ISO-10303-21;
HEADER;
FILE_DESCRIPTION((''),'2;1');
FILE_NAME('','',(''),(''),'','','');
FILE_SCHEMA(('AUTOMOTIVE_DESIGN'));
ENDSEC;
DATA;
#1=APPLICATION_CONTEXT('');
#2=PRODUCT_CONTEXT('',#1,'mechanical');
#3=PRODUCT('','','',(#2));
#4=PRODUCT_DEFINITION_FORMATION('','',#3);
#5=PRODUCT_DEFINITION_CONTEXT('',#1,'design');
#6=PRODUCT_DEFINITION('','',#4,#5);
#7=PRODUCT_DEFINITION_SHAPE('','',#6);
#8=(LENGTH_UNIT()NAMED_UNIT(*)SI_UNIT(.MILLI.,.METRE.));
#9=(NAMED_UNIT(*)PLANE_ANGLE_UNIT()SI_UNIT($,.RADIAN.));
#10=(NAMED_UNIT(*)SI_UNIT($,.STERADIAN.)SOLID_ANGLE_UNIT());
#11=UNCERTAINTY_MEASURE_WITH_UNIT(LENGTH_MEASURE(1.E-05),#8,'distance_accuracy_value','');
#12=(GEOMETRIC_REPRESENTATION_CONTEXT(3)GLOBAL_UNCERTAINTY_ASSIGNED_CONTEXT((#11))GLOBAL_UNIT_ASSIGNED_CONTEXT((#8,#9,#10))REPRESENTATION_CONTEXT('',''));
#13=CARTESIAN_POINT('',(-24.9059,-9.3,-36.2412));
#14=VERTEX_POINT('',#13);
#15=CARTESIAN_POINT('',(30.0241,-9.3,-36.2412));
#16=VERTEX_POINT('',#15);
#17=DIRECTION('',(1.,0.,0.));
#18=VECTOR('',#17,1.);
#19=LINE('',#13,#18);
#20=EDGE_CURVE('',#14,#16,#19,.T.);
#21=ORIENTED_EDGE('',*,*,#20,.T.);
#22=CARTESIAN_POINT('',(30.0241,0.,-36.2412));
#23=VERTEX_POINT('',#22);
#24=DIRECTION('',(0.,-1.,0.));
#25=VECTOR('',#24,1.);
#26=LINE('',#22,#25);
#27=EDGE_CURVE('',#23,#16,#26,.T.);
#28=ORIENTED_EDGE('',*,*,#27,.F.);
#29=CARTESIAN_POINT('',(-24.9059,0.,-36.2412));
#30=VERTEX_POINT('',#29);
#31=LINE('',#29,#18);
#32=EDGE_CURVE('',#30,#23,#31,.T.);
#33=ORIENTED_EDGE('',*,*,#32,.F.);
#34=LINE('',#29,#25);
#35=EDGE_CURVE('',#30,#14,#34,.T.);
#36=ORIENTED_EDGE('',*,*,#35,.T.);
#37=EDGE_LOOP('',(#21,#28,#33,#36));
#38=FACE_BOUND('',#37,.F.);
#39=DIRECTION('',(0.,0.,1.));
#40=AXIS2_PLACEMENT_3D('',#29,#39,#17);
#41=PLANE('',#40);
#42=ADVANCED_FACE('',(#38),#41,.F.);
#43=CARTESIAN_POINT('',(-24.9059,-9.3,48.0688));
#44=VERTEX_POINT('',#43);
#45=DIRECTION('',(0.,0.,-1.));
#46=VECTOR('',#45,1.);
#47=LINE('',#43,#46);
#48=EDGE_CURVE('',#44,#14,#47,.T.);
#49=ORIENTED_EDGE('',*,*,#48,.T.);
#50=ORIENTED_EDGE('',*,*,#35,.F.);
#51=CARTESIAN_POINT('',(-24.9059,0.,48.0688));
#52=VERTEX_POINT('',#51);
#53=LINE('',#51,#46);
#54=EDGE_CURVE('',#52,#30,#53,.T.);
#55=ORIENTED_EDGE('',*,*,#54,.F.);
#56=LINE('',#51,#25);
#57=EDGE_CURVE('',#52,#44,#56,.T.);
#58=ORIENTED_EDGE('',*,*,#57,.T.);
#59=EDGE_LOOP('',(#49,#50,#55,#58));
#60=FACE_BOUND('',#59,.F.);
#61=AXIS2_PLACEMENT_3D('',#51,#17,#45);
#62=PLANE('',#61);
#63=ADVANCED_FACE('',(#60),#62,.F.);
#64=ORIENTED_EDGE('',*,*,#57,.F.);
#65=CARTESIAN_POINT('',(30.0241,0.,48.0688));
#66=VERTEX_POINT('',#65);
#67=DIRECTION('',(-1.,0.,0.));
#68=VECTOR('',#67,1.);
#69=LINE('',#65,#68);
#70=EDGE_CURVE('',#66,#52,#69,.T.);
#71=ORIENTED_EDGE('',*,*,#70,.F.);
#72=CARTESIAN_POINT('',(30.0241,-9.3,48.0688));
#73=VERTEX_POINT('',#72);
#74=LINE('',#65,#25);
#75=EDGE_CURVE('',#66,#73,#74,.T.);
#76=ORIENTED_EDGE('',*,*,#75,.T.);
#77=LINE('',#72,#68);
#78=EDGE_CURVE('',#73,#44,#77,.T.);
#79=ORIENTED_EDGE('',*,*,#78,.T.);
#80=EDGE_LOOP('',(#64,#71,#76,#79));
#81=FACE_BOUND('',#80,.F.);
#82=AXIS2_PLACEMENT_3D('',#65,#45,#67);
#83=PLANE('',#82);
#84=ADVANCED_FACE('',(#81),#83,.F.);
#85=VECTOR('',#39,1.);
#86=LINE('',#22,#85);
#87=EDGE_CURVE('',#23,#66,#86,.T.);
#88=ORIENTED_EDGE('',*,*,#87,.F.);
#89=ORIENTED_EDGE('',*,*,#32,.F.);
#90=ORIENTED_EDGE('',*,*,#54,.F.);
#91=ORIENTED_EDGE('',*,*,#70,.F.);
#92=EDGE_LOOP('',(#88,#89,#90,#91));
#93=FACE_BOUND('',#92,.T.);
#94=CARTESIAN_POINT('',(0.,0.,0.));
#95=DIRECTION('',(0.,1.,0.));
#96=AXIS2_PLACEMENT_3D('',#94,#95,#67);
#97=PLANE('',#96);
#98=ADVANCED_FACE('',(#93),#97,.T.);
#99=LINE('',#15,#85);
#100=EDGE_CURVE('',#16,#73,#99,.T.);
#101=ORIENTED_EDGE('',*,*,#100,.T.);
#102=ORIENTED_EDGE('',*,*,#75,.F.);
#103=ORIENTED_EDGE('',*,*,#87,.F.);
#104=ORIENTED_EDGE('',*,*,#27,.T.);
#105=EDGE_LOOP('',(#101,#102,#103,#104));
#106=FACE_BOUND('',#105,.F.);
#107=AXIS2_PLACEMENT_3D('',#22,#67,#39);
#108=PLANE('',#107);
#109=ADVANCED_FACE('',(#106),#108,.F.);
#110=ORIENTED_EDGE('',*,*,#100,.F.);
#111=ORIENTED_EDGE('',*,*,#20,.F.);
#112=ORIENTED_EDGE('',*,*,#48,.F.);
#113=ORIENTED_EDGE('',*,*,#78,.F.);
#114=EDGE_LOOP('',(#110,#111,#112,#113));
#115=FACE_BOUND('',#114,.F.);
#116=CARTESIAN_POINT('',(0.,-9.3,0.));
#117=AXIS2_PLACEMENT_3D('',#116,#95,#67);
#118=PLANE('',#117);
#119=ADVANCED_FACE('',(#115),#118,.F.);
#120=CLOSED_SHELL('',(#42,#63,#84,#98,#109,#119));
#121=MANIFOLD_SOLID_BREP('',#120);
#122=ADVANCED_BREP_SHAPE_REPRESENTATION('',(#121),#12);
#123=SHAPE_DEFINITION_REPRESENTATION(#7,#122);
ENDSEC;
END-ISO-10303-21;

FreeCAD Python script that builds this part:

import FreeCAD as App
import Part
import Sketcher
Q = App.Units.Quantity

doc = App.newDocument("Part")
params = doc.addObject("Spreadsheet::Sheet", "Params")
for row, (alias, value) in enumerate([
    ("sketch1_width", "54.93 mm"),
    ("sketch1_height", "84.31 mm"),
    ("pad1_length", "9.3 mm"),
], start=1):
    params.set(f"A{row}", alias)
    params.set(f"B{row}", "=" + value)
    params.setAlias(f"B{row}", alias)

body = doc.addObject("PartDesign::Body", "Body")

# Sketch on XZ plane
sketch1 = doc.addObject("Sketcher::SketchObject", "Sketch")
body.addObject(sketch1)
sketch1.AttachmentSupport = (doc.XZ_Plane, [""])
sketch1.MapMode = "FlatFace"
sketch1.addGeometry(Part.LineSegment(App.Vector(30.0241, -36.2412, 0), App.Vector(-24.9059, -36.2412, 0)), False)
sketch1.addGeometry(Part.LineSegment(App.Vector(-24.9059, -36.2412, 0), App.Vector(-24.9059, 48.0688, 0)), False)
sketch1.addGeometry(Part.LineSegment(App.Vector(-24.9059, 48.0688, 0), App.Vector(30.0241, 48.0688, 0)), False)
sketch1.addGeometry(Part.LineSegment(App.Vector(30.0241, 48.0688, 0), App.Vector(30.0241, -36.2412, 0)), False)
sketch1.addConstraint(Sketcher.Constraint("Coincident", 0, 2, 1, 1))
sketch1.addConstraint(Sketcher.Constraint("Coincident", 1, 2, 2, 1))
sketch1.addConstraint(Sketcher.Constraint("Coincident", 2, 2, 3, 1))
sketch1.addConstraint(Sketcher.Constraint("Coincident", 3, 2, 0, 1))
sketch1.addConstraint(Sketcher.Constraint("Horizontal", 0))
sketch1.addConstraint(Sketcher.Constraint("Vertical", 1))
sketch1.addConstraint(Sketcher.Constraint("Horizontal", 2))
sketch1.addConstraint(Sketcher.Constraint("Vertical", 3))
sketch1.addConstraint(Sketcher.Constraint("DistanceX", 0, 2, 0, 1, Q("54.93 mm")))
sketch1.addConstraint(Sketcher.Constraint("DistanceY", 1, 1, 1, 2, Q("84.31 mm")))
sketch1.addConstraint(Sketcher.Constraint("DistanceX", 0, 2, -1, 1, Q("24.906 mm")))
sketch1.addConstraint(Sketcher.Constraint("DistanceY", 0, 2, -1, 1, Q("36.2412 mm")))
sketch1.setExpression("Constraints[8]", "Params.sketch1_width")
sketch1.setExpression("Constraints[9]", "Params.sketch1_height")
pad1 = doc.addObject("PartDesign::Pad", "Pad")
body.addObject(pad1)
pad1.Profile = sketch1
pad1.setExpression("Length", "Params.pad1_length")

doc.recompute()
